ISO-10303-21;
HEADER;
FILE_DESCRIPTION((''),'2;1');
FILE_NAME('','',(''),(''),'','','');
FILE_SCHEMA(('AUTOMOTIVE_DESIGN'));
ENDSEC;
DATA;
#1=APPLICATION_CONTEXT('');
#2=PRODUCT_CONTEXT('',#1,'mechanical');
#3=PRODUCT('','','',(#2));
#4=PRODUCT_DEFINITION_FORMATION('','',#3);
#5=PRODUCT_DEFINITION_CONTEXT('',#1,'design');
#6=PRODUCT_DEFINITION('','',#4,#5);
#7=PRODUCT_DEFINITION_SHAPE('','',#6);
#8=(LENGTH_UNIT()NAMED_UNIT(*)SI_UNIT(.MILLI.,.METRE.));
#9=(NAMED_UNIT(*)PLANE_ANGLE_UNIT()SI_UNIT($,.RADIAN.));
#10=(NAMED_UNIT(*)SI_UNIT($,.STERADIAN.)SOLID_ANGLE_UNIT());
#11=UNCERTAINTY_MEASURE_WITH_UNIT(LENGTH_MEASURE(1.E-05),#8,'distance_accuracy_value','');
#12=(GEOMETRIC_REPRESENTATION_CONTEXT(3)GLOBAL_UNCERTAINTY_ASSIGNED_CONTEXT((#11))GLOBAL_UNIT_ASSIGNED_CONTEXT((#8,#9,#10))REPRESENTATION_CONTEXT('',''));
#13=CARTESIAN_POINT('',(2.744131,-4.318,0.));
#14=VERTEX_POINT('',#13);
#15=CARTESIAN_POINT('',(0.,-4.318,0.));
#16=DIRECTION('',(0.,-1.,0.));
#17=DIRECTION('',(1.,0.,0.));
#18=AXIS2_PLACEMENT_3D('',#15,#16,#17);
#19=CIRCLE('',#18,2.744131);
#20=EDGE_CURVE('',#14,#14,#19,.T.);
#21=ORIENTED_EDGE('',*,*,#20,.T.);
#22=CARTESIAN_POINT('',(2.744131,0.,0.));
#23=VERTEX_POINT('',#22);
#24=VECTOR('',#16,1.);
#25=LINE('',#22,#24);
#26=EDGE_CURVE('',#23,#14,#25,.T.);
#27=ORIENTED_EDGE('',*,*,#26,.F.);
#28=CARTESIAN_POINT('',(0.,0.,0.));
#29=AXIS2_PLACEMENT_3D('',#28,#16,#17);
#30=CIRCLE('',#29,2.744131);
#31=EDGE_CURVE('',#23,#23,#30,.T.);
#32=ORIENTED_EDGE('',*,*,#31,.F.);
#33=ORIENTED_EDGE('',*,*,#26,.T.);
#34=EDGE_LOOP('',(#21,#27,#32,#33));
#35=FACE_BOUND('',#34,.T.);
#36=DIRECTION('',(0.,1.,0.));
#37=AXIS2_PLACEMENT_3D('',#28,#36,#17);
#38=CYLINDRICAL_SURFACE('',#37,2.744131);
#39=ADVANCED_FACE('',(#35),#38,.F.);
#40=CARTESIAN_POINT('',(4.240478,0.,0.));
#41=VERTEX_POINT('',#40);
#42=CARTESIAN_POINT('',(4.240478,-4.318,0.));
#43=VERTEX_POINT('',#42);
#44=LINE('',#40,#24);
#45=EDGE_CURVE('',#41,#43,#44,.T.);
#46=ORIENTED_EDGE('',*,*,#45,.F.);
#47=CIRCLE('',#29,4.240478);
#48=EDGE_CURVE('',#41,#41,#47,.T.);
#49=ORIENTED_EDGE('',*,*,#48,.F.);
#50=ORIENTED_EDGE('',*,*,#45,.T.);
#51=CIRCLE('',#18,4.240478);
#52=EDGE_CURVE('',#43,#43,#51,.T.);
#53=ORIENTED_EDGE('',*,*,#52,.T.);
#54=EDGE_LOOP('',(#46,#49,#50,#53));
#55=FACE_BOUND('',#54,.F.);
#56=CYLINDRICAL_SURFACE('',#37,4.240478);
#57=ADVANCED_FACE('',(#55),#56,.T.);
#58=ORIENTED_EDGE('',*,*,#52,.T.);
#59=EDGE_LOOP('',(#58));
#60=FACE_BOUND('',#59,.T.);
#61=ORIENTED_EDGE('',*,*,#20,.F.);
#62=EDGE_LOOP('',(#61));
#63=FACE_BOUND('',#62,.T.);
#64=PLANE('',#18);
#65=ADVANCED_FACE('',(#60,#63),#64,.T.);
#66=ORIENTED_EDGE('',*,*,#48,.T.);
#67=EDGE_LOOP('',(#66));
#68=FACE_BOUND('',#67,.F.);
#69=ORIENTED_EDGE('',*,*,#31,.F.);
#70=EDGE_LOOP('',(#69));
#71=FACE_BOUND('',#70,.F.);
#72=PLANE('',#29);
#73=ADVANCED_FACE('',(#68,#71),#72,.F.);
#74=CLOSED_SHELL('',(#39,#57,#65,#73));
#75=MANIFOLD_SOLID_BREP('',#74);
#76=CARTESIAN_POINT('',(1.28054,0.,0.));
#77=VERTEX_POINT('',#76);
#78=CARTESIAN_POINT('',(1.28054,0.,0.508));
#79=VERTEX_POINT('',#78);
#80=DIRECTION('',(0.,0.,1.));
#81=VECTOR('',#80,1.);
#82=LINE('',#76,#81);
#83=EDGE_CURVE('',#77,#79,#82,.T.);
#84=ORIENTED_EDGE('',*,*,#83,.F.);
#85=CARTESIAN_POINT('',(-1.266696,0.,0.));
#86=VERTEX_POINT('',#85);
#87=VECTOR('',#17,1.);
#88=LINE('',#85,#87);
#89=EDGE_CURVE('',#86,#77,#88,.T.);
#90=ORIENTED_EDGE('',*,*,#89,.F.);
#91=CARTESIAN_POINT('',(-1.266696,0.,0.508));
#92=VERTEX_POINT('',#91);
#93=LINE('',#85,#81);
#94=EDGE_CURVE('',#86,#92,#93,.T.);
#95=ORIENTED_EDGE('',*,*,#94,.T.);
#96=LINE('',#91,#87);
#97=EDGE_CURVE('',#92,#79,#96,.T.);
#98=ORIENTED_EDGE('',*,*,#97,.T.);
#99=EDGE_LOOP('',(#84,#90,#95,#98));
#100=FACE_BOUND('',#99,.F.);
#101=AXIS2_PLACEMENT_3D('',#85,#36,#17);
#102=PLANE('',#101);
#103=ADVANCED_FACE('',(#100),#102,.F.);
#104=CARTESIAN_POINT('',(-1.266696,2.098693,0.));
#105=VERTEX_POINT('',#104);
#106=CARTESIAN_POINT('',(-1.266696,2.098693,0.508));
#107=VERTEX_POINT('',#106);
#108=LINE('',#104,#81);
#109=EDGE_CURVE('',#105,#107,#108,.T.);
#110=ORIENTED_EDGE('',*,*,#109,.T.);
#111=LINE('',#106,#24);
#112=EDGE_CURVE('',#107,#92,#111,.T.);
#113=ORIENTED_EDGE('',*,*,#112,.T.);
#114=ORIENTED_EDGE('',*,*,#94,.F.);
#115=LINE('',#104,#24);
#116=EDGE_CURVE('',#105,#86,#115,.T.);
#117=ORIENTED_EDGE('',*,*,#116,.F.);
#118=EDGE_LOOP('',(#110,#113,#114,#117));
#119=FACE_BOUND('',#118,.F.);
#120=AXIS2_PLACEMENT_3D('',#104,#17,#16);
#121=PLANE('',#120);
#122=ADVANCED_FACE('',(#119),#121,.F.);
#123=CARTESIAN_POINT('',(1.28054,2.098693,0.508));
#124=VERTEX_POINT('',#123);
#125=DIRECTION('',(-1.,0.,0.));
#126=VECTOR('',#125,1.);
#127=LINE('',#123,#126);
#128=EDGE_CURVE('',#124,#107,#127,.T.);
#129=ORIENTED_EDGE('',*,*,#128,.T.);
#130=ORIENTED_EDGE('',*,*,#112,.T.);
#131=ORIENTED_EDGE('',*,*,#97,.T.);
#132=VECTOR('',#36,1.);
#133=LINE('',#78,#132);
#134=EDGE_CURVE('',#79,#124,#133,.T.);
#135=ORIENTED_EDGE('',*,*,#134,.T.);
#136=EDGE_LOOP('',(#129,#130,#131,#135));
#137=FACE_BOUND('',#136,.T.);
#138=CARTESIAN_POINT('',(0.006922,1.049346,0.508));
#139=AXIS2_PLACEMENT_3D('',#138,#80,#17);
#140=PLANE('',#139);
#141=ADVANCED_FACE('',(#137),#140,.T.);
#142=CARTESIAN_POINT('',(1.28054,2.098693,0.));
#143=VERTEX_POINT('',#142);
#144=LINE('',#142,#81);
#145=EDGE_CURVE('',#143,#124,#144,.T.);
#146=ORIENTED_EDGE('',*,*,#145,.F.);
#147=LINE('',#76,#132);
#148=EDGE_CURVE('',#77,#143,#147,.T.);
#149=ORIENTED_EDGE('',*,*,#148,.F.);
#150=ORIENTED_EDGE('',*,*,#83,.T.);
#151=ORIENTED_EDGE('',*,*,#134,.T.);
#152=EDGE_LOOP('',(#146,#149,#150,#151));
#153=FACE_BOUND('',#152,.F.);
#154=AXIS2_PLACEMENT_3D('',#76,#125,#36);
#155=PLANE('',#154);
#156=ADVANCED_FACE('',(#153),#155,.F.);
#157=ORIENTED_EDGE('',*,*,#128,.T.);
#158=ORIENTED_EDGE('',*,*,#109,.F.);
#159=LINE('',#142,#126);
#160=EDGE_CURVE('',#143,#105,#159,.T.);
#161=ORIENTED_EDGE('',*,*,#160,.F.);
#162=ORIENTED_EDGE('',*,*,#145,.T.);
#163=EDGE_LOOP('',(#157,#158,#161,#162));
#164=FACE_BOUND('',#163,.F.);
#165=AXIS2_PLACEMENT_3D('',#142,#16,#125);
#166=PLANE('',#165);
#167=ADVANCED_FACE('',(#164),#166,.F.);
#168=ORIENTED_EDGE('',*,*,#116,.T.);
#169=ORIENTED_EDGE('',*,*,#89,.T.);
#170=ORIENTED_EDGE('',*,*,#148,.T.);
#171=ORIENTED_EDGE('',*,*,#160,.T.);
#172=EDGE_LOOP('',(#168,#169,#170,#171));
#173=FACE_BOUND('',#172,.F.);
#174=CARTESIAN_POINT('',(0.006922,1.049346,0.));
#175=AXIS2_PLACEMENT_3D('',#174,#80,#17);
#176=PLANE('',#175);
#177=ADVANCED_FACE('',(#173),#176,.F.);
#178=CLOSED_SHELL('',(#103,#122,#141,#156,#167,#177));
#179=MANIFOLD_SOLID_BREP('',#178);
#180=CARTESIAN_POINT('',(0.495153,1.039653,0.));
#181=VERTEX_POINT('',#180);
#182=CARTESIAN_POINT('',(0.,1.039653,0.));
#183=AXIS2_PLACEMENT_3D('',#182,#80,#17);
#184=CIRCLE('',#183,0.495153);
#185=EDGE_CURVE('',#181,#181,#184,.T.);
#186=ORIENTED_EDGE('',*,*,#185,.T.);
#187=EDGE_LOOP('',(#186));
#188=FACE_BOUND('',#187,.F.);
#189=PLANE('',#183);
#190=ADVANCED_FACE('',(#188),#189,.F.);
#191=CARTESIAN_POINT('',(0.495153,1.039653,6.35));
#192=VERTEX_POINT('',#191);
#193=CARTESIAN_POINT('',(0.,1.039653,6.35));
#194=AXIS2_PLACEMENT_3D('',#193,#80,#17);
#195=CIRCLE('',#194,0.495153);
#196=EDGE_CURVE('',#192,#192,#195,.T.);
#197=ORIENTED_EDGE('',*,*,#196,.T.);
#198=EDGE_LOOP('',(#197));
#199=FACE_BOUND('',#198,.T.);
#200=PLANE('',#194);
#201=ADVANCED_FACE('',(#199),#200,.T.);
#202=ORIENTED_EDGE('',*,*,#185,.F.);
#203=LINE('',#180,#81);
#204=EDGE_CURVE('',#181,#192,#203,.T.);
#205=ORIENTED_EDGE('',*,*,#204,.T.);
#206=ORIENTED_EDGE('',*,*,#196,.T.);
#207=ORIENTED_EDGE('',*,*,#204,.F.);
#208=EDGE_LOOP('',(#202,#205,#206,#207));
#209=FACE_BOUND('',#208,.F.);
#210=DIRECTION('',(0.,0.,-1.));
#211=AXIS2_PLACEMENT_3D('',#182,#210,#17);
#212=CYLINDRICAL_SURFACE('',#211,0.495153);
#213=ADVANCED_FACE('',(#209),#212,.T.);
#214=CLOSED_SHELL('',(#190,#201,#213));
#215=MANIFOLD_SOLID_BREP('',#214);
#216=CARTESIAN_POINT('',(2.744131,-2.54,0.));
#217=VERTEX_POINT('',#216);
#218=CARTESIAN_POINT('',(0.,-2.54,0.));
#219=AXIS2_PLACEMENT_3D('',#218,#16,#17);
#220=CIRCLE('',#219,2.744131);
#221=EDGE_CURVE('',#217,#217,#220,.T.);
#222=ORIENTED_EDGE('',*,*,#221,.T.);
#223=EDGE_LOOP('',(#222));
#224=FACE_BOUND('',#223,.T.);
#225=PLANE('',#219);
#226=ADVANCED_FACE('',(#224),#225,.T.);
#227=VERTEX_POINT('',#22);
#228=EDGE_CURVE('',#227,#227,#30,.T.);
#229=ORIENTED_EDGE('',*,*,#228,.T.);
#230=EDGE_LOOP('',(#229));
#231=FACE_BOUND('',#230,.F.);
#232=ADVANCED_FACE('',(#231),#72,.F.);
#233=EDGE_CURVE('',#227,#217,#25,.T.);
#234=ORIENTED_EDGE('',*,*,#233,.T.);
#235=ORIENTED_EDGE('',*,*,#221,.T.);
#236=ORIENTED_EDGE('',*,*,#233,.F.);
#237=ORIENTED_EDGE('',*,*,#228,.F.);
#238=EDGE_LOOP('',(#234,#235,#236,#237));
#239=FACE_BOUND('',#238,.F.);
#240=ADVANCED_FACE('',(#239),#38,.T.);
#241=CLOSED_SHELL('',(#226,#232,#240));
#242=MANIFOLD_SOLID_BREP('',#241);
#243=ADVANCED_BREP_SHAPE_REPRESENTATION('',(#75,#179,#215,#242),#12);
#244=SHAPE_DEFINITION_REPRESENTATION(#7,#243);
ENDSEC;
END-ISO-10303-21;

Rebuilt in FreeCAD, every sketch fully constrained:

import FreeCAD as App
import Part
import Sketcher
from FreeCAD import Vector
Q = App.Units.Quantity


def add_polygon(sketch, points):
    """Adds a closed chain of lines whose ends are joined by coincident constraints."""
    first, n = sketch.GeometryCount, len(points)
    for a, b in zip(points, points[1:] + points[:1]):
        sketch.addGeometry(Part.LineSegment(App.Vector(*a, 0), App.Vector(*b, 0)), False)
    for i in range(n):
        sketch.addConstraint(Sketcher.Constraint("Coincident", first + i, 2, first + (i + 1) % n, 1))

doc = App.newDocument("Part")
body = doc.addObject("PartDesign::Body", "Body")

sketch1 = body.newObject("Sketcher::SketchObject", "Sketch")
sketch1.AttachmentSupport = (doc.getObject("XY_Plane"), [""])
sketch1.MapMode = "FlatFace"
add_polygon(sketch1, [(-1.3, 0), (1.3, 0), (1.3, 2.1), (-1.3, 2.1)])
sketch1.addConstraint(Sketcher.Constraint("Horizontal", 0))
sketch1.addConstraint(Sketcher.Constraint("Vertical", 1))
sketch1.addConstraint(Sketcher.Constraint("Horizontal", 2))
sketch1.addConstraint(Sketcher.Constraint("Vertical", 3))
sketch1.addConstraint(Sketcher.Constraint("PointOnObject", 0, 2, -1))
sketch1.addConstraint(Sketcher.Constraint("DistanceX", 0, 1, 0, 2, 2.547236))
sketch1.addConstraint(Sketcher.Constraint("DistanceY", 1, 1, 1, 2, 2.098693))
sketch1.addConstraint(Sketcher.Constraint("DistanceX", -1, 1, 0, 2, 1.28054))
pad1 = body.newObject("PartDesign::Pad", "Pad")
pad1.Profile = sketch1
pad1.Length = Q("0.02 in")
body2 = doc.addObject("PartDesign::Body", "Body001")

sketch2 = body2.newObject("Sketcher::SketchObject", "Sketch001")
sketch2.AttachmentSupport = (doc.getObject("XY_Plane001"), [""])
sketch2.MapMode = "FlatFace"
sketch2.addGeometry(Part.Circle(Vector(0, 1.04, 0), Vector(0, 0, 1), 0.5), False)
sketch2.addConstraint(Sketcher.Constraint("PointOnObject", 0, 3, -2))
sketch2.addConstraint(Sketcher.Constraint("Diameter", 0, 0.990306))
sketch2.addConstraint(Sketcher.Constraint("DistanceY", -1, 1, 0, 3, 1.039653))
pad2 = body2.newObject("PartDesign::Pad", "Pad001")
pad2.Profile = sketch2
pad2.Length = Q("0.25 in")
body3 = doc.addObject("PartDesign::Body", "Body002")

sketch3 = body3.newObject("Sketcher::SketchObject", "Sketch002")
sketch3.AttachmentSupport = (doc.getObject("XZ_Plane002"), [""])
sketch3.MapMode = "FlatFace"
sketch3.addGeometry(Part.Circle(Vector(0, 0, 0), Vector(0, 0, 1), 4.2), False)
sketch3.addGeometry(Part.Circle(Vector(0, 0, 0), Vector(0, 0, 1), 2.7), False)
sketch3.addConstraint(Sketcher.Constraint("Coincident", 0, 3, -1, 1))
sketch3.addConstraint(Sketcher.Constraint("Coincident", 1, 3, -1, 1))
sketch3.addConstraint(Sketcher.Constraint("Diameter", 1, 5.488262))
sketch3.addConstraint(Sketcher.Constraint("Diameter", 0, 8.480956))
pad3 = body3.newObject("PartDesign::Pad", "Pad002")
pad3.Profile = sketch3
pad3.Length = Q("0.17 in")
body4 = doc.addObject("PartDesign::Body", "Body003")

sketch4 = body4.newObject("Sketcher::SketchObject", "Sketch003")
sketch4.AttachmentSupport = (doc.getObject("XZ_Plane003"), [""])
sketch4.MapMode = "FlatFace"
sketch4.addGeometry(Part.Circle(Vector(0, 0, 0), Vector(0, 0, 1), 2.7), False)
sketch4.addConstraint(Sketcher.Constraint("Coincident", 0, 3, -1, 1))
sketch4.addConstraint(Sketcher.Constraint("Diameter", 0, 5.488262))
pad4 = body4.newObject("PartDesign::Pad", "Pad003")
pad4.Profile = sketch4
pad4.Length = Q("0.1 in")

doc.recompute()
